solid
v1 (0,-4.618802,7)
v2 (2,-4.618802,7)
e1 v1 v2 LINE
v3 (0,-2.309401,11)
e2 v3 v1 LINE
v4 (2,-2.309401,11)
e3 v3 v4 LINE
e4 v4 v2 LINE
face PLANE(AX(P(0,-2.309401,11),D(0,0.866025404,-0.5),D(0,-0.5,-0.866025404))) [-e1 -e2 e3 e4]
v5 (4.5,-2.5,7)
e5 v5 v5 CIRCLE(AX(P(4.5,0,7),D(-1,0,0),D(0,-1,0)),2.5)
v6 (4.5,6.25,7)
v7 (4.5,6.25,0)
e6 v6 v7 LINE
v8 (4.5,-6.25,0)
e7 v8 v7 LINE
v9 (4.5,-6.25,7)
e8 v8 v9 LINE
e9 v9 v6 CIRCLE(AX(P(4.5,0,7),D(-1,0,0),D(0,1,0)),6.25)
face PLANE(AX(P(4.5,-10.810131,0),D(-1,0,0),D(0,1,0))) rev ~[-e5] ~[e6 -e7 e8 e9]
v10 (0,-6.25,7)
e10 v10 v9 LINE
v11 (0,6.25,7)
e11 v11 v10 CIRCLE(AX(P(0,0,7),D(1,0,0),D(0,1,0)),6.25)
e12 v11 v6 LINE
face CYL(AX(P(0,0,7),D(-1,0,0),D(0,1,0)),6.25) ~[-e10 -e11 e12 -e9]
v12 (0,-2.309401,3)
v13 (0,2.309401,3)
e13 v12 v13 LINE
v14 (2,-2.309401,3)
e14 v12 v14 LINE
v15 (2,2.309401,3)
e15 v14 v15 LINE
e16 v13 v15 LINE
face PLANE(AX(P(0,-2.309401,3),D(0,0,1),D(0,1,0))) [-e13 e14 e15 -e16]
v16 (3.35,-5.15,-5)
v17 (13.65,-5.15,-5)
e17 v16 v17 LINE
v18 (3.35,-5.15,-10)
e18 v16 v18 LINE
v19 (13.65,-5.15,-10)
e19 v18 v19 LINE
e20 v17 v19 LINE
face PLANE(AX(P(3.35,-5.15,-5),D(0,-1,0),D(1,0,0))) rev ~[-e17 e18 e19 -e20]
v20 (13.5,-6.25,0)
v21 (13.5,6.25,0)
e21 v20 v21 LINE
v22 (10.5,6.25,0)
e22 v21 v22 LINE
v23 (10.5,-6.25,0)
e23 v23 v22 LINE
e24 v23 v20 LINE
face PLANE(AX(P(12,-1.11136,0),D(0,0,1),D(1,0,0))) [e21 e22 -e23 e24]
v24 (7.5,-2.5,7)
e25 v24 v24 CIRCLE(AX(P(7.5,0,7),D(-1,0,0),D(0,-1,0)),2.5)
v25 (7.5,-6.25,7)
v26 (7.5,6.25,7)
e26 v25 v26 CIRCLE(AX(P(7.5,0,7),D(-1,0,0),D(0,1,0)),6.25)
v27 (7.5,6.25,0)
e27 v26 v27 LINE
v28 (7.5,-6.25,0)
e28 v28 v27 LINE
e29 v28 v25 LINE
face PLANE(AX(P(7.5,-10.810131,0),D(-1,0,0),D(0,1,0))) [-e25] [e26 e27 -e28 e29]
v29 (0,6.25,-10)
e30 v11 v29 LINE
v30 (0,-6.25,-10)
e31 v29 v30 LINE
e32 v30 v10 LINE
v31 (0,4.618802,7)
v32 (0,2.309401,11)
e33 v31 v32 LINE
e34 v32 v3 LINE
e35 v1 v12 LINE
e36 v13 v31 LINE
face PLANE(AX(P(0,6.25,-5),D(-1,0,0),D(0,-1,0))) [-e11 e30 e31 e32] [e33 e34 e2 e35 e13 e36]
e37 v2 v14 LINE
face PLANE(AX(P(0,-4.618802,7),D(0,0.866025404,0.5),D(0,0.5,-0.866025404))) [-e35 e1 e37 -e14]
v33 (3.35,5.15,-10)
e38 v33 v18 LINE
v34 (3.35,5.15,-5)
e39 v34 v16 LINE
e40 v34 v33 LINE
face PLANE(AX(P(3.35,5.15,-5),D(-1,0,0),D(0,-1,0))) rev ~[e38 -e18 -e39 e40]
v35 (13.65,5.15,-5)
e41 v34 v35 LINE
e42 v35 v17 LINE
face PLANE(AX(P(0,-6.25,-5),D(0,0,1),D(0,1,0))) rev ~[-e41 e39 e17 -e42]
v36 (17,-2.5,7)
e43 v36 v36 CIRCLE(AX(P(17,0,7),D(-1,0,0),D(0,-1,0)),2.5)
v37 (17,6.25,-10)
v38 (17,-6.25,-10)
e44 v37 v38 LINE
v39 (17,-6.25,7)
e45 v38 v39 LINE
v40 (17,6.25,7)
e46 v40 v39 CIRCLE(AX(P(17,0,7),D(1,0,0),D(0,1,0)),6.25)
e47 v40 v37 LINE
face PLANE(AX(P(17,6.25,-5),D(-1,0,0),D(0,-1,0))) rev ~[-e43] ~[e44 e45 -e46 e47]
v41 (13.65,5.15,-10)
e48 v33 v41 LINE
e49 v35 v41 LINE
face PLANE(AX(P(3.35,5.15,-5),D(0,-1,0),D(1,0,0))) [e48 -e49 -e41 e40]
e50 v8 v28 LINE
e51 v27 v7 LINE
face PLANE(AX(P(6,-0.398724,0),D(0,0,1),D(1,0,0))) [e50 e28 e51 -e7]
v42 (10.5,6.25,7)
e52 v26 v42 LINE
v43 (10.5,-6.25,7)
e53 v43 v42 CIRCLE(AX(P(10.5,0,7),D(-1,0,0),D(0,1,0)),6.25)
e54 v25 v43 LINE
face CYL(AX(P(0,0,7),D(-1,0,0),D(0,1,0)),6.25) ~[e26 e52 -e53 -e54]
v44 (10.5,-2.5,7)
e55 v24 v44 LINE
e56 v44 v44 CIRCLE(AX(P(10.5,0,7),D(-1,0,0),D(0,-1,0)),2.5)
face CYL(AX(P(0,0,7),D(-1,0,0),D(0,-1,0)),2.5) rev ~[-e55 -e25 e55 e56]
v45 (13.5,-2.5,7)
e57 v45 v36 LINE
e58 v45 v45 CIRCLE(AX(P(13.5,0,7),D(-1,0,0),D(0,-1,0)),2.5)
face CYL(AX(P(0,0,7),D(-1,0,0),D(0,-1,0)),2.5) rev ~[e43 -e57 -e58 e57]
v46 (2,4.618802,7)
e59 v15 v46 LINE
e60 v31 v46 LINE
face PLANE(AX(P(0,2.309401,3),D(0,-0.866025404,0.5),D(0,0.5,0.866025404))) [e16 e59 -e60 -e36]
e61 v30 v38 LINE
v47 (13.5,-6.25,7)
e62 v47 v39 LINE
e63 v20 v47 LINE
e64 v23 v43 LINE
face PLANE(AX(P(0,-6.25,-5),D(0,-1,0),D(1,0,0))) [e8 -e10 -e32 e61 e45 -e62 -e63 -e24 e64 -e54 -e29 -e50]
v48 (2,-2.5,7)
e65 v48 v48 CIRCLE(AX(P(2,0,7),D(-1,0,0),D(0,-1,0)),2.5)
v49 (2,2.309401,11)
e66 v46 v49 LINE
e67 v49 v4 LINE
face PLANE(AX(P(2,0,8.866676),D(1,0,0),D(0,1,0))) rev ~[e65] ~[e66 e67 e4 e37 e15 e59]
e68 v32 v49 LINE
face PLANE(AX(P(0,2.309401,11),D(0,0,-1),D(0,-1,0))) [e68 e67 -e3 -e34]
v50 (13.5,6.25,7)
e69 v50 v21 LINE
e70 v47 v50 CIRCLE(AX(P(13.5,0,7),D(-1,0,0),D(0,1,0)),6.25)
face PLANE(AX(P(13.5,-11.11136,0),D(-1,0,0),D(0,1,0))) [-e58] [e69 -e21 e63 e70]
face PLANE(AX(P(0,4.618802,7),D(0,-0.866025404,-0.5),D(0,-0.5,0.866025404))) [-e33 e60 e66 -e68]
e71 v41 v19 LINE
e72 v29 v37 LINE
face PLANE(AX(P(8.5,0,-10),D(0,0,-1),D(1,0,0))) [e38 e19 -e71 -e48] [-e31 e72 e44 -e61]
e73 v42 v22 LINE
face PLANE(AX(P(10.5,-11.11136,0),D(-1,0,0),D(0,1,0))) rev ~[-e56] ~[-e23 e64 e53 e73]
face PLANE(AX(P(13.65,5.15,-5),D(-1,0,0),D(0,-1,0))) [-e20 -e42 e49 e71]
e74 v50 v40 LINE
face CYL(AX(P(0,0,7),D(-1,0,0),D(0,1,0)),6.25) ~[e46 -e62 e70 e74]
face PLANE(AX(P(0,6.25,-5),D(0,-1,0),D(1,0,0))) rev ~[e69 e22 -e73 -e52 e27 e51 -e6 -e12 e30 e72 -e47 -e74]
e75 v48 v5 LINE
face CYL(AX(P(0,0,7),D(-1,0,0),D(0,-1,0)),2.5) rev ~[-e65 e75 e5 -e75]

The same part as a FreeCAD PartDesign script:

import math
import FreeCAD as App
import Part
import Sketcher

V = App.Vector
Q = App.Units.Quantity

doc = App.newDocument("Part")
body = doc.addObject("PartDesign::Body", "Body")

# Sketch on YZ plane
sketch1 = body.newObject("Sketcher::SketchObject", "Sketch")
sketch1.AttachmentSupport = (doc.getObject("YZ_Plane"), [""])
sketch1.MapMode = "FlatFace"
sketch1.addGeometry(Part.ArcOfCircle(Part.Circle(V(0, 7, 0), V(0, 0, 1), 6.2), math.radians(0), math.radians(180)), False)
sketch1.addGeometry(Part.LineSegment(V(-6.2, 7, 0), V(-6.2, -5, 0)), False)
sketch1.addGeometry(Part.LineSegment(V(-6.2, -5, 0), V(6.2, -5, 0)), False)
sketch1.addGeometry(Part.LineSegment(V(6.2, -5, 0), V(6.2, 7, 0)), False)
sketch1.addGeometry(Part.Circle(V(0, 7, 0), V(0, 0, 1), 2.5), False)
sketch1.addConstraint(Sketcher.Constraint("Tangent", 0, 2, 1, 1))
sketch1.addConstraint(Sketcher.Constraint("Coincident", 1, 2, 2, 1))
sketch1.addConstraint(Sketcher.Constraint("Coincident", 2, 2, 3, 1))
sketch1.addConstraint(Sketcher.Constraint("Tangent", 3, 2, 0, 1))
sketch1.addConstraint(Sketcher.Constraint("Vertical", 1))
sketch1.addConstraint(Sketcher.Constraint("Horizontal", 2))
sketch1.addConstraint(Sketcher.Constraint("Vertical", 3))
sketch1.addConstraint(Sketcher.Constraint("Coincident", 4, 3, 0, 3))
sketch1.addConstraint(Sketcher.Constraint("PointOnObject", 0, 3, -2))
sketch1.addConstraint(Sketcher.Constraint("Diameter", 4, Q("5 mm")))
sketch1.addConstraint(Sketcher.Constraint("DistanceY", 1, 2, 1, 1, Q("12 mm")))
sketch1.addConstraint(Sketcher.Constraint("Radius", 0, Q("6.25 mm")))
sketch1.addConstraint(Sketcher.Constraint("DistanceY", -1, 1, 0, 3, Q("7 mm")))
pad1 = body.newObject("PartDesign::Pad", "Pad")
pad1.Profile = sketch1
pad1.Length = 17

# Sketch on YZ plane
sketch2 = body.newObject("Sketcher::SketchObject", "Sketch001")
sketch2.AttachmentSupport = (doc.getObject("YZ_Plane"), [""])
sketch2.MapMode = "FlatFace"
sketch2.addGeometry(Part.LineSegment(V(-2.3, 11, 0), V(-4.6, 7, 0)), False)
sketch2.addGeometry(Part.LineSegment(V(-4.6, 7, 0), V(-2.3, 3, 0)), False)
sketch2.addGeometry(Part.LineSegment(V(-2.3, 3, 0), V(2.3, 3, 0)), False)
sketch2.addGeometry(Part.LineSegment(V(2.3, 3, 0), V(4.6, 7, 0)), False)
sketch2.addGeometry(Part.LineSegment(V(4.6, 7, 0), V(2.3, 11, 0)), False)
sketch2.addGeometry(Part.LineSegment(V(2.3, 11, 0), V(-2.3, 11, 0)), False)
sketch2.addGeometry(Part.Circle(V(0, 7, 0), V(0, 0, 1), 2.5), False)
sketch2.addConstraint(Sketcher.Constraint("Coincident", 0, 2, 1, 1))
sketch2.addConstraint(Sketcher.Constraint("Coincident", 1, 2, 2, 1))
sketch2.addConstraint(Sketcher.Constraint("Coincident", 2, 2, 3, 1))
sketch2.addConstraint(Sketcher.Constraint("Coincident", 3, 2, 4, 1))
sketch2.addConstraint(Sketcher.Constraint("Coincident", 4, 2, 5, 1))
sketch2.addConstraint(Sketcher.Constraint("Coincident", 5, 2, 0, 1))
sketch2.addConstraint(Sketcher.Constraint("Horizontal", 2))
sketch2.addConstraint(Sketcher.Constraint("Horizontal", 5))
sketch2.addConstraint(Sketcher.Constraint("Symmetric", 0, 2, 3, 2, -2))
sketch2.addConstraint(Sketcher.Constraint("PointOnObject", 6, 3, -2))
sketch2.addConstraint(Sketcher.Constraint("Parallel", 0, 3))
sketch2.addConstraint(Sketcher.Constraint("Parallel", 1, 4))
sketch2.addConstraint(Sketcher.Constraint("Horizontal", 6, 3, 0, 2))
sketch2.addConstraint(Sketcher.Constraint("Vertical", 2, 2, 4, 2))
sketch2.addConstraint(Sketcher.Constraint("Vertical", 1, 2, 5, 2))
sketch2.addConstraint(Sketcher.Constraint("Diameter", 6, Q("5 mm")))
sketch2.addConstraint(Sketcher.Constraint("Angle", 0, Q("-120 deg")))
sketch2.addConstraint(Sketcher.Constraint("DistanceY", -1, 1, 6, 3, Q("7 mm")))
sketch2.addConstraint(Sketcher.Constraint("DistanceY", -1, 1, 1, 2, Q("3 mm")))
sketch2.addConstraint(Sketcher.Constraint("DistanceX", 1, 2, -1, 1, Q("2.309401 mm")))
pocket1 = body.newObject("PartDesign::Pocket", "Pocket")
pocket1.Profile = sketch2
pocket1.Length = 2
pocket1.Reversed = True

# Sketch on XY plane
sketch3 = body.newObject("Sketcher::SketchObject", "Sketch002")
sketch3.AttachmentSupport = (doc.getObject("XY_Plane"), [""])
sketch3.MapMode = "FlatFace"
sketch3.addGeometry(Part.LineSegment(V(4.5, 10, 0), V(4.5, -10.8, 0)), False)
sketch3.addGeometry(Part.LineSegment(V(4.5, -10.8, 0), V(7.5, -10.8, 0)), False)
sketch3.addGeometry(Part.LineSegment(V(7.5, -10.8, 0), V(7.5, 10, 0)), False)
sketch3.addGeometry(Part.LineSegment(V(7.5, 10, 0), V(4.5, 10, 0)), False)
sketch3.addGeometry(Part.LineSegment(V(10.5, 8.9, 0), V(10.5, -11.1, 0)), False)
sketch3.addGeometry(Part.LineSegment(V(10.5, -11.1, 0), V(13.5, -11.1, 0)), False)
sketch3.addGeometry(Part.LineSegment(V(13.5, -11.1, 0), V(13.5, 8.9, 0)), False)
sketch3.addGeometry(Part.LineSegment(V(13.5, 8.9, 0), V(10.5, 8.9, 0)), False)
sketch3.addConstraint(Sketcher.Constraint("Coincident", 0, 2, 1, 1))
sketch3.addConstraint(Sketcher.Constraint("Coincident", 1, 2, 2, 1))
sketch3.addConstraint(Sketcher.Constraint("Coincident", 2, 2, 3, 1))
sketch3.addConstraint(Sketcher.Constraint("Coincident", 3, 2, 0, 1))
sketch3.addConstraint(Sketcher.Constraint("Coincident", 4, 2, 5, 1))
sketch3.addConstraint(Sketcher.Constraint("Coincident", 5, 2, 6, 1))
sketch3.addConstraint(Sketcher.Constraint("Coincident", 6, 2, 7, 1))
sketch3.addConstraint(Sketcher.Constraint("Coincident", 7, 2, 4, 1))
sketch3.addConstraint(Sketcher.Constraint("Vertical", 0))
sketch3.addConstraint(Sketcher.Constraint("Horizontal", 1))
sketch3.addConstraint(Sketcher.Constraint("Vertical", 2))
sketch3.addConstraint(Sketcher.Constraint("Horizontal", 3))
sketch3.addConstraint(Sketcher.Constraint("Vertical", 4))
sketch3.addConstraint(Sketcher.Constraint("Horizontal", 5))
sketch3.addConstraint(Sketcher.Constraint("Vertical", 6))
sketch3.addConstraint(Sketcher.Constraint("Horizontal", 7))
sketch3.addConstraint(Sketcher.Constraint("Equal", 3, 5))
sketch3.addConstraint(Sketcher.Constraint("DistanceX", 1, 1, 1, 2, Q("3 mm")))
sketch3.addConstraint(Sketcher.Constraint("DistanceY", 4, 2, 4, 1, Q("20 mm")))
sketch3.addConstraint(Sketcher.Constraint("DistanceX", 1, 2, 4, 2, Q("3 mm")))
sketch3.addConstraint(Sketcher.Constraint("DistanceX", -1, 1, 0, 2, Q("4.5 mm")))
sketch3.addConstraint(Sketcher.Constraint("DistanceY", 0, 2, 0, 1, Q("20.822814 mm")))
sketch3.addConstraint(Sketcher.Constraint("DistanceY", 0, 2, -1, 1, Q("10.810131 mm")))
sketch3.addConstraint(Sketcher.Constraint("DistanceY", 4, 2, -1, 1, Q("11.11136 mm")))
pocket2 = body.newObject("PartDesign::Pocket", "Pocket001")
pocket2.Profile = sketch3
pocket2.Length = 25
pocket2.Reversed = True

# Sketch on XY plane
sketch4 = body.newObject("Sketcher::SketchObject", "Sketch003")
sketch4.AttachmentSupport = (doc.getObject("XY_Plane"), [""])
sketch4.MapMode = "FlatFace"
sketch4.AttachmentOffset = App.Placement(V(0, 0, -5), App.Rotation())
sketch4.addGeometry(Part.LineSegment(V(0, -6, 0), V(0, 6, 0)), False)
sketch4.addGeometry(Part.LineSegment(V(0, 6, 0), V(17, 6, 0)), False)
sketch4.addGeometry(Part.LineSegment(V(17, 6, 0), V(17, -6, 0)), False)
sketch4.addGeometry(Part.LineSegment(V(17, -6, 0), V(0, -6, 0)), False)
sketch4.addGeometry(Part.LineSegment(V(14, 5, 0), V(3, 5, 0)), False)
sketch4.addGeometry(Part.LineSegment(V(3, 5, 0), V(3, -5, 0)), False)
sketch4.addGeometry(Part.LineSegment(V(3, -5, 0), V(14, -5, 0)), False)
sketch4.addGeometry(Part.LineSegment(V(14, -5, 0), V(14, 5, 0)), False)
sketch4.addConstraint(Sketcher.Constraint("Coincident", 0, 2, 1, 1))
sketch4.addConstraint(Sketcher.Constraint("Coincident", 1, 2, 2, 1))
sketch4.addConstraint(Sketcher.Constraint("Coincident", 2, 2, 3, 1))
sketch4.addConstraint(Sketcher.Constraint("Coincident", 3, 2, 0, 1))
sketch4.addConstraint(Sketcher.Constraint("Coincident", 4, 2, 5, 1))
sketch4.addConstraint(Sketcher.Constraint("Coincident", 5, 2, 6, 1))
sketch4.addConstraint(Sketcher.Constraint("Coincident", 6, 2, 7, 1))
sketch4.addConstraint(Sketcher.Constraint("Coincident", 7, 2, 4, 1))
sketch4.addConstraint(Sketcher.Constraint("Vertical", 0))
sketch4.addConstraint(Sketcher.Constraint("Horizontal", 1))
sketch4.addConstraint(Sketcher.Constraint("Vertical", 2))
sketch4.addConstraint(Sketcher.Constraint("Horizontal", 3))
sketch4.addConstraint(Sketcher.Constraint("Horizontal", 4))
sketch4.addConstraint(Sketcher.Constraint("Vertical", 5))
sketch4.addConstraint(Sketcher.Constraint("Horizontal", 6))
sketch4.addConstraint(Sketcher.Constraint("Vertical", 7))
sketch4.addConstraint(Sketcher.Constraint("Symmetric", 0, 2, 3, 2, -1, 1))
sketch4.addConstraint(Sketcher.Constraint("Equal", 6, 5))
sketch4.addConstraint(Sketcher.Constraint("DistanceX", 1, 1, 1, 2, Q("17 mm")))
sketch4.addConstraint(Sketcher.Constraint("DistanceX", 4, 2, 4, 1, Q("10.3 mm")))
sketch4.addConstraint(Sketcher.Constraint("DistanceY", 0, 1, 0, 2, Q("12.5 mm")))
sketch4.addConstraint(Sketcher.Constraint("DistanceY", 4, 2, 0, 2, Q("1.1 mm")))
sketch4.addConstraint(Sketcher.Constraint("DistanceX", -1, 1, 4, 2, Q("3.35 mm")))
pad2 = body.newObject("PartDesign::Pad", "Pad001")
pad2.Profile = sketch4
pad2.Length = 5
pad2.Reversed = True

doc.recompute()
